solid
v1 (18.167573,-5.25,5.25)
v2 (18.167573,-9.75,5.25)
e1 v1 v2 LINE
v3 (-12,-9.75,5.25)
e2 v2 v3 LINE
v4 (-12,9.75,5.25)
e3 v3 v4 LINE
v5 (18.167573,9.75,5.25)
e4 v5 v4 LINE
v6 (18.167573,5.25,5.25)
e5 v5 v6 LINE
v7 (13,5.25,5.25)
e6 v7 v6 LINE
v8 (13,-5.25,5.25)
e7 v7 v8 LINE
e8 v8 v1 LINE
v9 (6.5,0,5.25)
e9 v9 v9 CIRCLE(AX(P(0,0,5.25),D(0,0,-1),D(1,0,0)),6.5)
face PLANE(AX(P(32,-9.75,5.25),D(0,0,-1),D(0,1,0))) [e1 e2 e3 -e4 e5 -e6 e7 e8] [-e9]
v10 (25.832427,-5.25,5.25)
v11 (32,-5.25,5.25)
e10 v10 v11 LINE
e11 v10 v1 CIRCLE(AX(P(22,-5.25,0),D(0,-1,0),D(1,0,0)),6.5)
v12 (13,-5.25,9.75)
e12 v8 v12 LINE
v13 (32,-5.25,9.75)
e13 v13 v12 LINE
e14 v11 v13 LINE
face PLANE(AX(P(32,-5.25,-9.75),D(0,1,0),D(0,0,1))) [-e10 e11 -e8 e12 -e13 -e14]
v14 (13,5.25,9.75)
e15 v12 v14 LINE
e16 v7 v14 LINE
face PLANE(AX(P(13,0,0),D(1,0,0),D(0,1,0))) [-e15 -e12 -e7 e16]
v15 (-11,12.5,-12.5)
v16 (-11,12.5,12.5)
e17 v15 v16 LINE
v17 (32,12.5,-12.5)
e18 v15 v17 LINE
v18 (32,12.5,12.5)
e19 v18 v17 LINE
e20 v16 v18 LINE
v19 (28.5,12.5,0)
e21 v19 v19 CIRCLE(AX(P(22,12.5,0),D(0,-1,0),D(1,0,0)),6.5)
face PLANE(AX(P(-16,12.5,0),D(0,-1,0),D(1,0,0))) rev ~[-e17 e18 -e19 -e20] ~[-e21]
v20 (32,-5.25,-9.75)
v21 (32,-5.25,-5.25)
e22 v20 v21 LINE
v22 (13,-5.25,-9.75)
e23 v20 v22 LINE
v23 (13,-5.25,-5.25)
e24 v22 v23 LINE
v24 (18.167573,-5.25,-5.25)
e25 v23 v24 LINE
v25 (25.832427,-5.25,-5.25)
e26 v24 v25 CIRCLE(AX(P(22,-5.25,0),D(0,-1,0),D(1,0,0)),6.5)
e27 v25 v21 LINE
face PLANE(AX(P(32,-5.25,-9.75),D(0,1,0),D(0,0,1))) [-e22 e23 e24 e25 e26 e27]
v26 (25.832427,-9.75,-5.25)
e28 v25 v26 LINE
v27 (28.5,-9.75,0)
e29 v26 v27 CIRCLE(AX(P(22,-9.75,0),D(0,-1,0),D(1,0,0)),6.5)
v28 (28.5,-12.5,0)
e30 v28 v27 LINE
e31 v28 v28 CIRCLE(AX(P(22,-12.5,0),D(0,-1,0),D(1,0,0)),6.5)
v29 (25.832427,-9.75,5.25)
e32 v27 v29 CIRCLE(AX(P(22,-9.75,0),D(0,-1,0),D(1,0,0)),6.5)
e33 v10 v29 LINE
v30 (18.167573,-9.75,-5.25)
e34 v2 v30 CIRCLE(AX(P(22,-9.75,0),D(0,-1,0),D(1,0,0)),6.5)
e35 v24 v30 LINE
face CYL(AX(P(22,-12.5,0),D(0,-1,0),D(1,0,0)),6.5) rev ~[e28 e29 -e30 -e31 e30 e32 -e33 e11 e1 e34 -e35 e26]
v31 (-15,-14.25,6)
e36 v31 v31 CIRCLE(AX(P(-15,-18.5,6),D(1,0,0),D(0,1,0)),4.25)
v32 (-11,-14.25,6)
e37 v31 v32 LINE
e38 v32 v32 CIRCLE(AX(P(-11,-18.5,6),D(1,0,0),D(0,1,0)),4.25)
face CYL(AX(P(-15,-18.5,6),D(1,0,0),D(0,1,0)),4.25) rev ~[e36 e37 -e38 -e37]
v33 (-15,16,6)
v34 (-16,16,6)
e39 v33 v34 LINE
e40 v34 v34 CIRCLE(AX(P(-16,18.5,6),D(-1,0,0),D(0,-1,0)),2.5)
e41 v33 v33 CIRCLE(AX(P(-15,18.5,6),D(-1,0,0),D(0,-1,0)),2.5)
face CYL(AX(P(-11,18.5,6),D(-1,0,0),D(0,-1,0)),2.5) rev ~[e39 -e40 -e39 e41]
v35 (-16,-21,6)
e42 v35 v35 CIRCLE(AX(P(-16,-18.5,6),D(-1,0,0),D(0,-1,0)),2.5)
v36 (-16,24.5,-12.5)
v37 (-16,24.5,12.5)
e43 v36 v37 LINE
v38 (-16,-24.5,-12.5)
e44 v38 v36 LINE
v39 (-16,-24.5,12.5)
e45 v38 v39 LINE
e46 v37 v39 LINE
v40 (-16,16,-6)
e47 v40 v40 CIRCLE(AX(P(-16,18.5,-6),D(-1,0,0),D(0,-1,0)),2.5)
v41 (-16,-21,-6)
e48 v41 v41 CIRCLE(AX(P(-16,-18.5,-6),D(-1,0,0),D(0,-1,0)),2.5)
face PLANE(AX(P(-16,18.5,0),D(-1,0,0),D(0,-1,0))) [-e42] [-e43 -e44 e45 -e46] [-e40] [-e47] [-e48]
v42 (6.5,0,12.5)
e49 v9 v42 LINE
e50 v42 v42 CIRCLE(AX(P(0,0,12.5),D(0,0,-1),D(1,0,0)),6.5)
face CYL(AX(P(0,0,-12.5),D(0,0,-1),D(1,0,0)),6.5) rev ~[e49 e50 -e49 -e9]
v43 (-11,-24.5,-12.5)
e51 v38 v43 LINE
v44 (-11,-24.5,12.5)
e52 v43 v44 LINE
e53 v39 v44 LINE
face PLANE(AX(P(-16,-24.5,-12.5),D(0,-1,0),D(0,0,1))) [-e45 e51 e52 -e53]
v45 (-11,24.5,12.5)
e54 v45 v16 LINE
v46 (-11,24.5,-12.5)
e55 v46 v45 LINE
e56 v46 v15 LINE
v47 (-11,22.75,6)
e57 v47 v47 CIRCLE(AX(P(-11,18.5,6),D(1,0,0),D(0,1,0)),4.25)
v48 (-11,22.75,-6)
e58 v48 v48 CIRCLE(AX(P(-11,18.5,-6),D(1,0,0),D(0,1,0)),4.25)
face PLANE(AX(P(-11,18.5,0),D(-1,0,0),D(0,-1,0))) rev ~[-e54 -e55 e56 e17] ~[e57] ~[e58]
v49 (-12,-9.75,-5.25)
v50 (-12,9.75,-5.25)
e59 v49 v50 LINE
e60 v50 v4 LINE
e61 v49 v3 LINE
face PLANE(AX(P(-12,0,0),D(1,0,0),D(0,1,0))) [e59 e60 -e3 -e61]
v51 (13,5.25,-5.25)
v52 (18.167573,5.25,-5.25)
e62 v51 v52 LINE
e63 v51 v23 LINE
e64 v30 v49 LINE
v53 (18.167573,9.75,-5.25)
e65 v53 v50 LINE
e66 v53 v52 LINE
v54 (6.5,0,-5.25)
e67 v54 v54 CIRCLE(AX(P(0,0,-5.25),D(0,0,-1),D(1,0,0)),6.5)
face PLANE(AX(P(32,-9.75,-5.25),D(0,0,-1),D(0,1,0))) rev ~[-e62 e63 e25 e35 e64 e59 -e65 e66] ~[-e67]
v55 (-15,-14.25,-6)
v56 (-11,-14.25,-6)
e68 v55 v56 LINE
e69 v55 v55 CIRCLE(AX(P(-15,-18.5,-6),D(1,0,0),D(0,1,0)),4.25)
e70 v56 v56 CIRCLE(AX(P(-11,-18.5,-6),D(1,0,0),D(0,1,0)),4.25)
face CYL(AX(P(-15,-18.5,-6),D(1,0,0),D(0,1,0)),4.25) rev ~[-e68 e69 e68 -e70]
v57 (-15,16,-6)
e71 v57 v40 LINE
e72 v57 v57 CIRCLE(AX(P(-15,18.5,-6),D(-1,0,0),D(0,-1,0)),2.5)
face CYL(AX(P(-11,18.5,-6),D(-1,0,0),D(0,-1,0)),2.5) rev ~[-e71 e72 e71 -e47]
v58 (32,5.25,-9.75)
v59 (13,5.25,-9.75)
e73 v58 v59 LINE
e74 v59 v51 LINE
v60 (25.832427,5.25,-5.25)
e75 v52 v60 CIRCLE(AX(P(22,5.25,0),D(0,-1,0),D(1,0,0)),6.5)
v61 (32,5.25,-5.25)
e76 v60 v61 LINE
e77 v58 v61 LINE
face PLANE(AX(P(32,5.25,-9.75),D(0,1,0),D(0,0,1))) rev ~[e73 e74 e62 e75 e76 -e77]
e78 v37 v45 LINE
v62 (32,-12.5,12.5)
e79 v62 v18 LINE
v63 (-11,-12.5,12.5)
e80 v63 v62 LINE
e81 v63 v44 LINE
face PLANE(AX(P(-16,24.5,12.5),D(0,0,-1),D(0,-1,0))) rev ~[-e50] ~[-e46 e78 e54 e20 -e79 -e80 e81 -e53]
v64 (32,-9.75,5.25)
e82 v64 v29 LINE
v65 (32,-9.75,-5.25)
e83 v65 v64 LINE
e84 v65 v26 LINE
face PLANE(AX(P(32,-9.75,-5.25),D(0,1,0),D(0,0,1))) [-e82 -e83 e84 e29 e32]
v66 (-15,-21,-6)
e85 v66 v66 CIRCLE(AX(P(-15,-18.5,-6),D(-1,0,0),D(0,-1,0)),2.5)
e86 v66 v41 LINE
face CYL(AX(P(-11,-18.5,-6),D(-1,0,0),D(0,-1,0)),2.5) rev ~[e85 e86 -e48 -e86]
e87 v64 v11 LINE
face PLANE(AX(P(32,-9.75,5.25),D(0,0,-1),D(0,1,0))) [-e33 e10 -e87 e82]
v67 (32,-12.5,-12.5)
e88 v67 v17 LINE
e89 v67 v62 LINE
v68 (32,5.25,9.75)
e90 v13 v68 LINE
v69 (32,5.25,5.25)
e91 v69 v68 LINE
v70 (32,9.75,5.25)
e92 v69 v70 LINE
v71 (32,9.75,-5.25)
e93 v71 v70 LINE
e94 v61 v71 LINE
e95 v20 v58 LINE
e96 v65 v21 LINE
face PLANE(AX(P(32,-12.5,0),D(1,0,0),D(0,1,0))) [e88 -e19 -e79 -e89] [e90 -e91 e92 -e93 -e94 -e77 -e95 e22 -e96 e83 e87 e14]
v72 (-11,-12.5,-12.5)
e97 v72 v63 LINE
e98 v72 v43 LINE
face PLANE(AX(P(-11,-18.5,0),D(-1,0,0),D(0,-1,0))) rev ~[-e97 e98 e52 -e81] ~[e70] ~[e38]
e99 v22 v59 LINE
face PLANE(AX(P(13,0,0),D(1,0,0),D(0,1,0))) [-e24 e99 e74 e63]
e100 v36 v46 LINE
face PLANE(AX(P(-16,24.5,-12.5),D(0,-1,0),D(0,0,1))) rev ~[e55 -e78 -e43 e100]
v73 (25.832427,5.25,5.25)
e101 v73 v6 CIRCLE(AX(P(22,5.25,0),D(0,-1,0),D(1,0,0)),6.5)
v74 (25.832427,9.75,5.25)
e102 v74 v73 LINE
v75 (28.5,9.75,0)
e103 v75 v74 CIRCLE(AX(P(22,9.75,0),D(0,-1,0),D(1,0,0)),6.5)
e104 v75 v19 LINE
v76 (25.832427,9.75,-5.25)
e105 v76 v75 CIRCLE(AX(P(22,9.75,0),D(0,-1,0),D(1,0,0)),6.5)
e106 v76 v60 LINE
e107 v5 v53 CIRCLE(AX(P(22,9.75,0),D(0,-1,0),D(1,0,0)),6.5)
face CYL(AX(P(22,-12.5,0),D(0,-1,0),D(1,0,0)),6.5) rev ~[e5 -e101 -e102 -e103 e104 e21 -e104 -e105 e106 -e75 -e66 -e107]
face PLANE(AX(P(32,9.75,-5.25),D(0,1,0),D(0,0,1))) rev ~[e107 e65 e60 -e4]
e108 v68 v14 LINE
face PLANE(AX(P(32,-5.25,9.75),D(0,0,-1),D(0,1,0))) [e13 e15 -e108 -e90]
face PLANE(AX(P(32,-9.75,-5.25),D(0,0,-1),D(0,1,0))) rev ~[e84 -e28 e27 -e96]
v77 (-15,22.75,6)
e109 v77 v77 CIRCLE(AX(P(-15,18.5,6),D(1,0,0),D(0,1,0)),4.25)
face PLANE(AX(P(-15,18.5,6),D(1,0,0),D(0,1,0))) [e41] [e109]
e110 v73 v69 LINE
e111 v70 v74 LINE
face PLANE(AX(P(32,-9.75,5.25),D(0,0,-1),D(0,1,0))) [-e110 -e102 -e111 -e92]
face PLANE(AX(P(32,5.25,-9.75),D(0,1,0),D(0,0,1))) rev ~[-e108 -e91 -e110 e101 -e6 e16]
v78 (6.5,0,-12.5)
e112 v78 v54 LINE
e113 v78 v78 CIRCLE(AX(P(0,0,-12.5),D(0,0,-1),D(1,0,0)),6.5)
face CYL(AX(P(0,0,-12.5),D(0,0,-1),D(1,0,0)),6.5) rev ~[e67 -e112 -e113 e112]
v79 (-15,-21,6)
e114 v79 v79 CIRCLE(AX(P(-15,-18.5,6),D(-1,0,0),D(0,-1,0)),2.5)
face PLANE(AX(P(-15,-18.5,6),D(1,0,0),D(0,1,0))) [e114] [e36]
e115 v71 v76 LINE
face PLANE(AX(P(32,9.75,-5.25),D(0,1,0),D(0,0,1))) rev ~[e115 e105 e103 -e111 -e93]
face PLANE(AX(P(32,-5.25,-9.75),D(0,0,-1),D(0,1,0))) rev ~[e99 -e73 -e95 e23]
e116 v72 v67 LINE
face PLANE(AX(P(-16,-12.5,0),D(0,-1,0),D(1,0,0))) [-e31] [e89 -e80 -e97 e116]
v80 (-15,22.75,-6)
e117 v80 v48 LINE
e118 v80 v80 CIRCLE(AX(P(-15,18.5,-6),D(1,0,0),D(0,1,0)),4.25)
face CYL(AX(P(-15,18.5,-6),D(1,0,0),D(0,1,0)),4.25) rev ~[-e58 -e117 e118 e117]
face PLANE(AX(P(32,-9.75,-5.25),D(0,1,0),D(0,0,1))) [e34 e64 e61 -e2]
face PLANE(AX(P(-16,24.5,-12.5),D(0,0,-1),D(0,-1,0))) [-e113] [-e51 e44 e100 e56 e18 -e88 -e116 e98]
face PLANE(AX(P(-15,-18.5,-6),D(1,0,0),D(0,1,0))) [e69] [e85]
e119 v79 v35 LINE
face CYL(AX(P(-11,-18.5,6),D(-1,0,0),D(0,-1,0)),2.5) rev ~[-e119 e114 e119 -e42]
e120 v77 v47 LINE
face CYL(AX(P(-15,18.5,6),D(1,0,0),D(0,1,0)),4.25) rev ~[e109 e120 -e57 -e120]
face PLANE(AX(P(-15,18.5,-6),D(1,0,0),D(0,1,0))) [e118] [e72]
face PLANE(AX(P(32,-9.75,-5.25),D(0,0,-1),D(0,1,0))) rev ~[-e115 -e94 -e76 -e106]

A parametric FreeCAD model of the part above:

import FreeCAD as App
import Part
import Sketcher

V = App.Vector
Q = App.Units.Quantity


def add_polygon(sketch, points):
    """Adds a closed chain of lines whose ends are joined by coincident constraints."""
    first, n = sketch.GeometryCount, len(points)
    for a, b in zip(points, points[1:] + points[:1]):
        sketch.addGeometry(Part.LineSegment(App.Vector(*a, 0), App.Vector(*b, 0)), False)
    for i in range(n):
        sketch.addConstraint(Sketcher.Constraint("Coincident", first + i, 2, first + (i + 1) % n, 1))

doc = App.newDocument("Part")
params = doc.addObject("Spreadsheet::Sheet", "Params")
for row, (alias, value) in enumerate([
    ("sketch1_width", "48 mm"),
    ("sketch1_height", "25 mm"),
    ("pad1_length", "25 mm"),
    ("sketch2_width", "19.5 mm"),
    ("sketch2_height", "10.5 mm"),
    ("pocket1_length", "44 mm"),
    ("sketch3_diameter", "13 mm"),
    ("sketch4_width", "10.5 mm"),
    ("sketch4_height", "19.5 mm"),
    ("pocket3_length", "19 mm"),
    ("sketch5_diameter", "13 mm"),
    ("sketch6_width", "12 mm"),
    ("sketch6_height", "25 mm"),
    ("pad2_length", "5 mm"),
    ("sketch7_diameter", "5 mm"),
    ("hole_diameter", "5 mm"),
    ("hole_cbore_diameter", "8.5 mm"),
    ("hole_cbore_depth", "4 mm"),
], start=1):
    params.set(f"A{row}", alias)
    params.set(f"B{row}", "=" + value)
    params.setAlias(f"B{row}", alias)

body = doc.addObject("PartDesign::Body", "Body")

# Sketch on XY plane
sketch1 = doc.addObject("Sketcher::SketchObject", "Sketch")
body.addObject(sketch1)
sketch1.AttachmentSupport = (doc.XY_Plane, [""])
sketch1.MapMode = "FlatFace"
add_polygon(sketch1, [(-16, 12.5), (-16, -12.5), (32, -12.5), (32, 12.5)])  # lines 0-3
sketch1.addConstraint(Sketcher.Constraint("Vertical", 0))
sketch1.addConstraint(Sketcher.Constraint("Horizontal", 1))
sketch1.addConstraint(Sketcher.Constraint("Vertical", 2))
sketch1.addConstraint(Sketcher.Constraint("Horizontal", 3))
sketch1.addConstraint(Sketcher.Constraint("DistanceX", 1, 1, 1, 2, Q("48 mm")))
sketch1.addConstraint(Sketcher.Constraint("DistanceY", 0, 2, 0, 1, Q("25 mm")))
sketch1.addConstraint(Sketcher.Constraint("DistanceX", 0, 2, -1, 1, Q("16 mm")))
sketch1.addConstraint(Sketcher.Constraint("DistanceY", 0, 2, -1, 1, Q("12.5 mm")))
sketch1.setExpression("Constraints[8]", "Params.sketch1_width")
sketch1.setExpression("Constraints[9]", "Params.sketch1_height")
pad1 = doc.addObject("PartDesign::Pad", "Pad")
body.addObject(pad1)
pad1.Profile = sketch1
pad1.setExpression("Length", "Params.pad1_length")
pad1.Midplane = True

# Sketch on YZ plane
sketch2 = doc.addObject("Sketcher::SketchObject", "Sketch001")
body.addObject(sketch2)
sketch2.AttachmentSupport = (doc.YZ_Plane, [""])
sketch2.MapMode = "FlatFace"
sketch2.AttachmentOffset = App.Placement(V(0, 0, 32), App.Rotation())
add_polygon(sketch2, [(-9.75, 5.25), (-9.75, -5.25), (9.75, -5.25), (9.75, 5.25)])  # lines 0-3
sketch2.addConstraint(Sketcher.Constraint("Vertical", 0))
sketch2.addConstraint(Sketcher.Constraint("Horizontal", 1))
sketch2.addConstraint(Sketcher.Constraint("Vertical", 2))
sketch2.addConstraint(Sketcher.Constraint("Horizontal", 3))
sketch2.addConstraint(Sketcher.Constraint("Symmetric", 0, 2, 2, 2, -1, 1))
sketch2.addConstraint(Sketcher.Constraint("DistanceX", 1, 1, 1, 2, Q("19.5 mm")))
sketch2.addConstraint(Sketcher.Constraint("DistanceY", 0, 2, 0, 1, Q("10.5 mm")))
sketch2.setExpression("Constraints[9]", "Params.sketch2_width")
sketch2.setExpression("Constraints[10]", "Params.sketch2_height")
pocket1 = doc.addObject("PartDesign::Pocket", "Pocket")
body.addObject(pocket1)
pocket1.Profile = sketch2
pocket1.setExpression("Length", "Params.pocket1_length")

# Sketch on XY plane
sketch3 = doc.addObject("Sketcher::SketchObject", "Sketch002")
body.addObject(sketch3)
sketch3.AttachmentSupport = (doc.XY_Plane, [""])
sketch3.MapMode = "FlatFace"
sketch3.AttachmentOffset = App.Placement(V(0, 0, -12.5), App.Rotation())
sketch3.addGeometry(Part.Circle(V(0, 0, 0), V(0, 0, 1), 6.5), False)
sketch3.addConstraint(Sketcher.Constraint("Coincident", 0, 3, -1, 1))
sketch3.addConstraint(Sketcher.Constraint("Diameter", 0, Q("13 mm")))
sketch3.setExpression("Constraints[1]", "Params.sketch3_diameter")
pocket2 = doc.addObject("PartDesign::Pocket", "Pocket001")
body.addObject(pocket2)
pocket2.Profile = sketch3
pocket2.Type = "ThroughAll"
pocket2.Reversed = True

# Sketch on YZ plane
sketch4 = doc.addObject("Sketcher::SketchObject", "Sketch003")
body.addObject(sketch4)
sketch4.AttachmentSupport = (doc.YZ_Plane, [""])
sketch4.MapMode = "FlatFace"
sketch4.AttachmentOffset = App.Placement(V(0, 0, 32), App.Rotation())
add_polygon(sketch4, [(-5.25, 9.75), (-5.25, -9.75), (5.25, -9.75), (5.25, 9.75)])  # lines 0-3
sketch4.addConstraint(Sketcher.Constraint("Vertical", 0))
sketch4.addConstraint(Sketcher.Constraint("Horizontal", 1))
sketch4.addConstraint(Sketcher.Constraint("Vertical", 2))
sketch4.addConstraint(Sketcher.Constraint("Horizontal", 3))
sketch4.addConstraint(Sketcher.Constraint("Symmetric", 0, 2, 2, 2, -1, 1))
sketch4.addConstraint(Sketcher.Constraint("DistanceX", 1, 1, 1, 2, Q("10.5 mm")))
sketch4.addConstraint(Sketcher.Constraint("DistanceY", 0, 2, 0, 1, Q("19.5 mm")))
sketch4.setExpression("Constraints[9]", "Params.sketch4_width")
sketch4.setExpression("Constraints[10]", "Params.sketch4_height")
pocket3 = doc.addObject("PartDesign::Pocket", "Pocket002")
body.addObject(pocket3)
pocket3.Profile = sketch4
pocket3.setExpression("Length", "Params.pocket3_length")

# Sketch on XZ plane
sketch5 = doc.addObject("Sketcher::SketchObject", "Sketch004")
body.addObject(sketch5)
sketch5.AttachmentSupport = (doc.XZ_Plane, [""])
sketch5.MapMode = "FlatFace"
sketch5.AttachmentOffset = App.Placement(V(0, 0, 12.5), App.Rotation())
sketch5.addGeometry(Part.Circle(V(22, 0, 0), V(0, 0, 1), 6.5), False)
sketch5.addConstraint(Sketcher.Constraint("PointOnObject", 0, 3, -1))
sketch5.addConstraint(Sketcher.Constraint("Diameter", 0, Q("13 mm")))
sketch5.addConstraint(Sketcher.Constraint("DistanceX", -1, 1, 0, 3, Q("22 mm")))
sketch5.setExpression("Constraints[1]", "Params.sketch5_diameter")
pocket4 = doc.addObject("PartDesign::Pocket", "Pocket003")
body.addObject(pocket4)
pocket4.Profile = sketch5
pocket4.Type = "ThroughAll"

# Sketch on YZ plane
sketch6 = doc.addObject("Sketcher::SketchObject", "Sketch005")
body.addObject(sketch6)
sketch6.AttachmentSupport = (doc.YZ_Plane, [""])
sketch6.MapMode = "FlatFace"
sketch6.AttachmentOffset = App.Placement(V(0, 0, -16), App.Rotation())
add_polygon(sketch6, [(24.5, 12.5), (24.5, -12.5), (12.5, -12.5), (12.5, 12.5)])  # lines 0-3
add_polygon(sketch6, [(-12.5, 12.5), (-12.5, -12.5), (-24.5, -12.5), (-24.5, 12.5)])  # lines 4-7
sketch6.addConstraint(Sketcher.Constraint("Vertical", 0))
sketch6.addConstraint(Sketcher.Constraint("Horizontal", 1))
sketch6.addConstraint(Sketcher.Constraint("Vertical", 2))
sketch6.addConstraint(Sketcher.Constraint("Horizontal", 3))
sketch6.addConstraint(Sketcher.Constraint("Vertical", 4))
sketch6.addConstraint(Sketcher.Constraint("Horizontal", 5))
sketch6.addConstraint(Sketcher.Constraint("Vertical", 6))
sketch6.addConstraint(Sketcher.Constraint("Horizontal", 7))
sketch6.addConstraint(Sketcher.Constraint("Symmetric", 2, 2, 4, 2, -1, 1))
sketch6.addConstraint(Sketcher.Constraint("Symmetric", 0, 2, 6, 2, -1, 1))
sketch6.addConstraint(Sketcher.Constraint("Horizontal", 1, 2, 4, 2))
sketch6.addConstraint(Sketcher.Constraint("DistanceX", 1, 2, 1, 1, Q("12 mm")))
sketch6.addConstraint(Sketcher.Constraint("DistanceY", 0, 2, 0, 1, Q("25 mm")))
sketch6.addConstraint(Sketcher.Constraint("DistanceX", 4, 2, 1, 2, Q("25 mm")))
sketch6.setExpression("Constraints[19]", "Params.sketch6_width")
sketch6.setExpression("Constraints[20]", "Params.sketch6_height")
pad2 = doc.addObject("PartDesign::Pad", "Pad001")
body.addObject(pad2)
pad2.Profile = sketch6
pad2.setExpression("Length", "Params.pad2_length")

# Sketch on YZ plane
sketch7 = doc.addObject("Sketcher::SketchObject", "Sketch006")
body.addObject(sketch7)
sketch7.AttachmentSupport = (doc.YZ_Plane, [""])
sketch7.MapMode = "FlatFace"
sketch7.AttachmentOffset = App.Placement(V(0, 0, -11), App.Rotation())
sketch7.addGeometry(Part.Circle(V(-18.5, 6, 0), V(0, 0, 1), 2.5), False)
sketch7.addGeometry(Part.Circle(V(-18.5, -6, 0), V(0, 0, 1), 2.5), False)
sketch7.addGeometry(Part.Circle(V(18.5, 6, 0), V(0, 0, 1), 2.5), False)
sketch7.addGeometry(Part.Circle(V(18.5, -6, 0), V(0, 0, 1), 2.5), False)
sketch7.addConstraint(Sketcher.Constraint("Equal", 0, 1))
sketch7.addConstraint(Sketcher.Constraint("Equal", 1, 2))
sketch7.addConstraint(Sketcher.Constraint("Equal", 2, 3))
sketch7.addConstraint(Sketcher.Constraint("Symmetric", 1, 3, 2, 3, -1, 1))
sketch7.addConstraint(Sketcher.Constraint("Symmetric", 0, 3, 3, 3, -1, 1))
sketch7.addConstraint(Sketcher.Constraint("Symmetric", 0, 3, 2, 3, -2))
sketch7.addConstraint(Sketcher.Constraint("Diameter", 0, Q("5 mm")))
sketch7.addConstraint(Sketcher.Constraint("DistanceY", -1, 1, 0, 3, Q("6 mm")))
sketch7.addConstraint(Sketcher.Constraint("DistanceX", 0, 3, 2, 3, Q("37 mm")))
sketch7.setExpression("Constraints[6]", "Params.sketch7_diameter")
doc.recompute()
hole = doc.addObject("PartDesign::Hole", "Hole")
body.addObject(hole)
hole.Profile = sketch7
hole.ThreadType = "None"
hole.setExpression("Diameter", "Params.hole_diameter")
hole.DepthType = "ThroughAll"
hole.HoleCutType = "Counterbore"
hole.setExpression("HoleCutDiameter", "Params.hole_cbore_diameter")
hole.setExpression("HoleCutDepth", "Params.hole_cbore_depth")

doc.recompute()
